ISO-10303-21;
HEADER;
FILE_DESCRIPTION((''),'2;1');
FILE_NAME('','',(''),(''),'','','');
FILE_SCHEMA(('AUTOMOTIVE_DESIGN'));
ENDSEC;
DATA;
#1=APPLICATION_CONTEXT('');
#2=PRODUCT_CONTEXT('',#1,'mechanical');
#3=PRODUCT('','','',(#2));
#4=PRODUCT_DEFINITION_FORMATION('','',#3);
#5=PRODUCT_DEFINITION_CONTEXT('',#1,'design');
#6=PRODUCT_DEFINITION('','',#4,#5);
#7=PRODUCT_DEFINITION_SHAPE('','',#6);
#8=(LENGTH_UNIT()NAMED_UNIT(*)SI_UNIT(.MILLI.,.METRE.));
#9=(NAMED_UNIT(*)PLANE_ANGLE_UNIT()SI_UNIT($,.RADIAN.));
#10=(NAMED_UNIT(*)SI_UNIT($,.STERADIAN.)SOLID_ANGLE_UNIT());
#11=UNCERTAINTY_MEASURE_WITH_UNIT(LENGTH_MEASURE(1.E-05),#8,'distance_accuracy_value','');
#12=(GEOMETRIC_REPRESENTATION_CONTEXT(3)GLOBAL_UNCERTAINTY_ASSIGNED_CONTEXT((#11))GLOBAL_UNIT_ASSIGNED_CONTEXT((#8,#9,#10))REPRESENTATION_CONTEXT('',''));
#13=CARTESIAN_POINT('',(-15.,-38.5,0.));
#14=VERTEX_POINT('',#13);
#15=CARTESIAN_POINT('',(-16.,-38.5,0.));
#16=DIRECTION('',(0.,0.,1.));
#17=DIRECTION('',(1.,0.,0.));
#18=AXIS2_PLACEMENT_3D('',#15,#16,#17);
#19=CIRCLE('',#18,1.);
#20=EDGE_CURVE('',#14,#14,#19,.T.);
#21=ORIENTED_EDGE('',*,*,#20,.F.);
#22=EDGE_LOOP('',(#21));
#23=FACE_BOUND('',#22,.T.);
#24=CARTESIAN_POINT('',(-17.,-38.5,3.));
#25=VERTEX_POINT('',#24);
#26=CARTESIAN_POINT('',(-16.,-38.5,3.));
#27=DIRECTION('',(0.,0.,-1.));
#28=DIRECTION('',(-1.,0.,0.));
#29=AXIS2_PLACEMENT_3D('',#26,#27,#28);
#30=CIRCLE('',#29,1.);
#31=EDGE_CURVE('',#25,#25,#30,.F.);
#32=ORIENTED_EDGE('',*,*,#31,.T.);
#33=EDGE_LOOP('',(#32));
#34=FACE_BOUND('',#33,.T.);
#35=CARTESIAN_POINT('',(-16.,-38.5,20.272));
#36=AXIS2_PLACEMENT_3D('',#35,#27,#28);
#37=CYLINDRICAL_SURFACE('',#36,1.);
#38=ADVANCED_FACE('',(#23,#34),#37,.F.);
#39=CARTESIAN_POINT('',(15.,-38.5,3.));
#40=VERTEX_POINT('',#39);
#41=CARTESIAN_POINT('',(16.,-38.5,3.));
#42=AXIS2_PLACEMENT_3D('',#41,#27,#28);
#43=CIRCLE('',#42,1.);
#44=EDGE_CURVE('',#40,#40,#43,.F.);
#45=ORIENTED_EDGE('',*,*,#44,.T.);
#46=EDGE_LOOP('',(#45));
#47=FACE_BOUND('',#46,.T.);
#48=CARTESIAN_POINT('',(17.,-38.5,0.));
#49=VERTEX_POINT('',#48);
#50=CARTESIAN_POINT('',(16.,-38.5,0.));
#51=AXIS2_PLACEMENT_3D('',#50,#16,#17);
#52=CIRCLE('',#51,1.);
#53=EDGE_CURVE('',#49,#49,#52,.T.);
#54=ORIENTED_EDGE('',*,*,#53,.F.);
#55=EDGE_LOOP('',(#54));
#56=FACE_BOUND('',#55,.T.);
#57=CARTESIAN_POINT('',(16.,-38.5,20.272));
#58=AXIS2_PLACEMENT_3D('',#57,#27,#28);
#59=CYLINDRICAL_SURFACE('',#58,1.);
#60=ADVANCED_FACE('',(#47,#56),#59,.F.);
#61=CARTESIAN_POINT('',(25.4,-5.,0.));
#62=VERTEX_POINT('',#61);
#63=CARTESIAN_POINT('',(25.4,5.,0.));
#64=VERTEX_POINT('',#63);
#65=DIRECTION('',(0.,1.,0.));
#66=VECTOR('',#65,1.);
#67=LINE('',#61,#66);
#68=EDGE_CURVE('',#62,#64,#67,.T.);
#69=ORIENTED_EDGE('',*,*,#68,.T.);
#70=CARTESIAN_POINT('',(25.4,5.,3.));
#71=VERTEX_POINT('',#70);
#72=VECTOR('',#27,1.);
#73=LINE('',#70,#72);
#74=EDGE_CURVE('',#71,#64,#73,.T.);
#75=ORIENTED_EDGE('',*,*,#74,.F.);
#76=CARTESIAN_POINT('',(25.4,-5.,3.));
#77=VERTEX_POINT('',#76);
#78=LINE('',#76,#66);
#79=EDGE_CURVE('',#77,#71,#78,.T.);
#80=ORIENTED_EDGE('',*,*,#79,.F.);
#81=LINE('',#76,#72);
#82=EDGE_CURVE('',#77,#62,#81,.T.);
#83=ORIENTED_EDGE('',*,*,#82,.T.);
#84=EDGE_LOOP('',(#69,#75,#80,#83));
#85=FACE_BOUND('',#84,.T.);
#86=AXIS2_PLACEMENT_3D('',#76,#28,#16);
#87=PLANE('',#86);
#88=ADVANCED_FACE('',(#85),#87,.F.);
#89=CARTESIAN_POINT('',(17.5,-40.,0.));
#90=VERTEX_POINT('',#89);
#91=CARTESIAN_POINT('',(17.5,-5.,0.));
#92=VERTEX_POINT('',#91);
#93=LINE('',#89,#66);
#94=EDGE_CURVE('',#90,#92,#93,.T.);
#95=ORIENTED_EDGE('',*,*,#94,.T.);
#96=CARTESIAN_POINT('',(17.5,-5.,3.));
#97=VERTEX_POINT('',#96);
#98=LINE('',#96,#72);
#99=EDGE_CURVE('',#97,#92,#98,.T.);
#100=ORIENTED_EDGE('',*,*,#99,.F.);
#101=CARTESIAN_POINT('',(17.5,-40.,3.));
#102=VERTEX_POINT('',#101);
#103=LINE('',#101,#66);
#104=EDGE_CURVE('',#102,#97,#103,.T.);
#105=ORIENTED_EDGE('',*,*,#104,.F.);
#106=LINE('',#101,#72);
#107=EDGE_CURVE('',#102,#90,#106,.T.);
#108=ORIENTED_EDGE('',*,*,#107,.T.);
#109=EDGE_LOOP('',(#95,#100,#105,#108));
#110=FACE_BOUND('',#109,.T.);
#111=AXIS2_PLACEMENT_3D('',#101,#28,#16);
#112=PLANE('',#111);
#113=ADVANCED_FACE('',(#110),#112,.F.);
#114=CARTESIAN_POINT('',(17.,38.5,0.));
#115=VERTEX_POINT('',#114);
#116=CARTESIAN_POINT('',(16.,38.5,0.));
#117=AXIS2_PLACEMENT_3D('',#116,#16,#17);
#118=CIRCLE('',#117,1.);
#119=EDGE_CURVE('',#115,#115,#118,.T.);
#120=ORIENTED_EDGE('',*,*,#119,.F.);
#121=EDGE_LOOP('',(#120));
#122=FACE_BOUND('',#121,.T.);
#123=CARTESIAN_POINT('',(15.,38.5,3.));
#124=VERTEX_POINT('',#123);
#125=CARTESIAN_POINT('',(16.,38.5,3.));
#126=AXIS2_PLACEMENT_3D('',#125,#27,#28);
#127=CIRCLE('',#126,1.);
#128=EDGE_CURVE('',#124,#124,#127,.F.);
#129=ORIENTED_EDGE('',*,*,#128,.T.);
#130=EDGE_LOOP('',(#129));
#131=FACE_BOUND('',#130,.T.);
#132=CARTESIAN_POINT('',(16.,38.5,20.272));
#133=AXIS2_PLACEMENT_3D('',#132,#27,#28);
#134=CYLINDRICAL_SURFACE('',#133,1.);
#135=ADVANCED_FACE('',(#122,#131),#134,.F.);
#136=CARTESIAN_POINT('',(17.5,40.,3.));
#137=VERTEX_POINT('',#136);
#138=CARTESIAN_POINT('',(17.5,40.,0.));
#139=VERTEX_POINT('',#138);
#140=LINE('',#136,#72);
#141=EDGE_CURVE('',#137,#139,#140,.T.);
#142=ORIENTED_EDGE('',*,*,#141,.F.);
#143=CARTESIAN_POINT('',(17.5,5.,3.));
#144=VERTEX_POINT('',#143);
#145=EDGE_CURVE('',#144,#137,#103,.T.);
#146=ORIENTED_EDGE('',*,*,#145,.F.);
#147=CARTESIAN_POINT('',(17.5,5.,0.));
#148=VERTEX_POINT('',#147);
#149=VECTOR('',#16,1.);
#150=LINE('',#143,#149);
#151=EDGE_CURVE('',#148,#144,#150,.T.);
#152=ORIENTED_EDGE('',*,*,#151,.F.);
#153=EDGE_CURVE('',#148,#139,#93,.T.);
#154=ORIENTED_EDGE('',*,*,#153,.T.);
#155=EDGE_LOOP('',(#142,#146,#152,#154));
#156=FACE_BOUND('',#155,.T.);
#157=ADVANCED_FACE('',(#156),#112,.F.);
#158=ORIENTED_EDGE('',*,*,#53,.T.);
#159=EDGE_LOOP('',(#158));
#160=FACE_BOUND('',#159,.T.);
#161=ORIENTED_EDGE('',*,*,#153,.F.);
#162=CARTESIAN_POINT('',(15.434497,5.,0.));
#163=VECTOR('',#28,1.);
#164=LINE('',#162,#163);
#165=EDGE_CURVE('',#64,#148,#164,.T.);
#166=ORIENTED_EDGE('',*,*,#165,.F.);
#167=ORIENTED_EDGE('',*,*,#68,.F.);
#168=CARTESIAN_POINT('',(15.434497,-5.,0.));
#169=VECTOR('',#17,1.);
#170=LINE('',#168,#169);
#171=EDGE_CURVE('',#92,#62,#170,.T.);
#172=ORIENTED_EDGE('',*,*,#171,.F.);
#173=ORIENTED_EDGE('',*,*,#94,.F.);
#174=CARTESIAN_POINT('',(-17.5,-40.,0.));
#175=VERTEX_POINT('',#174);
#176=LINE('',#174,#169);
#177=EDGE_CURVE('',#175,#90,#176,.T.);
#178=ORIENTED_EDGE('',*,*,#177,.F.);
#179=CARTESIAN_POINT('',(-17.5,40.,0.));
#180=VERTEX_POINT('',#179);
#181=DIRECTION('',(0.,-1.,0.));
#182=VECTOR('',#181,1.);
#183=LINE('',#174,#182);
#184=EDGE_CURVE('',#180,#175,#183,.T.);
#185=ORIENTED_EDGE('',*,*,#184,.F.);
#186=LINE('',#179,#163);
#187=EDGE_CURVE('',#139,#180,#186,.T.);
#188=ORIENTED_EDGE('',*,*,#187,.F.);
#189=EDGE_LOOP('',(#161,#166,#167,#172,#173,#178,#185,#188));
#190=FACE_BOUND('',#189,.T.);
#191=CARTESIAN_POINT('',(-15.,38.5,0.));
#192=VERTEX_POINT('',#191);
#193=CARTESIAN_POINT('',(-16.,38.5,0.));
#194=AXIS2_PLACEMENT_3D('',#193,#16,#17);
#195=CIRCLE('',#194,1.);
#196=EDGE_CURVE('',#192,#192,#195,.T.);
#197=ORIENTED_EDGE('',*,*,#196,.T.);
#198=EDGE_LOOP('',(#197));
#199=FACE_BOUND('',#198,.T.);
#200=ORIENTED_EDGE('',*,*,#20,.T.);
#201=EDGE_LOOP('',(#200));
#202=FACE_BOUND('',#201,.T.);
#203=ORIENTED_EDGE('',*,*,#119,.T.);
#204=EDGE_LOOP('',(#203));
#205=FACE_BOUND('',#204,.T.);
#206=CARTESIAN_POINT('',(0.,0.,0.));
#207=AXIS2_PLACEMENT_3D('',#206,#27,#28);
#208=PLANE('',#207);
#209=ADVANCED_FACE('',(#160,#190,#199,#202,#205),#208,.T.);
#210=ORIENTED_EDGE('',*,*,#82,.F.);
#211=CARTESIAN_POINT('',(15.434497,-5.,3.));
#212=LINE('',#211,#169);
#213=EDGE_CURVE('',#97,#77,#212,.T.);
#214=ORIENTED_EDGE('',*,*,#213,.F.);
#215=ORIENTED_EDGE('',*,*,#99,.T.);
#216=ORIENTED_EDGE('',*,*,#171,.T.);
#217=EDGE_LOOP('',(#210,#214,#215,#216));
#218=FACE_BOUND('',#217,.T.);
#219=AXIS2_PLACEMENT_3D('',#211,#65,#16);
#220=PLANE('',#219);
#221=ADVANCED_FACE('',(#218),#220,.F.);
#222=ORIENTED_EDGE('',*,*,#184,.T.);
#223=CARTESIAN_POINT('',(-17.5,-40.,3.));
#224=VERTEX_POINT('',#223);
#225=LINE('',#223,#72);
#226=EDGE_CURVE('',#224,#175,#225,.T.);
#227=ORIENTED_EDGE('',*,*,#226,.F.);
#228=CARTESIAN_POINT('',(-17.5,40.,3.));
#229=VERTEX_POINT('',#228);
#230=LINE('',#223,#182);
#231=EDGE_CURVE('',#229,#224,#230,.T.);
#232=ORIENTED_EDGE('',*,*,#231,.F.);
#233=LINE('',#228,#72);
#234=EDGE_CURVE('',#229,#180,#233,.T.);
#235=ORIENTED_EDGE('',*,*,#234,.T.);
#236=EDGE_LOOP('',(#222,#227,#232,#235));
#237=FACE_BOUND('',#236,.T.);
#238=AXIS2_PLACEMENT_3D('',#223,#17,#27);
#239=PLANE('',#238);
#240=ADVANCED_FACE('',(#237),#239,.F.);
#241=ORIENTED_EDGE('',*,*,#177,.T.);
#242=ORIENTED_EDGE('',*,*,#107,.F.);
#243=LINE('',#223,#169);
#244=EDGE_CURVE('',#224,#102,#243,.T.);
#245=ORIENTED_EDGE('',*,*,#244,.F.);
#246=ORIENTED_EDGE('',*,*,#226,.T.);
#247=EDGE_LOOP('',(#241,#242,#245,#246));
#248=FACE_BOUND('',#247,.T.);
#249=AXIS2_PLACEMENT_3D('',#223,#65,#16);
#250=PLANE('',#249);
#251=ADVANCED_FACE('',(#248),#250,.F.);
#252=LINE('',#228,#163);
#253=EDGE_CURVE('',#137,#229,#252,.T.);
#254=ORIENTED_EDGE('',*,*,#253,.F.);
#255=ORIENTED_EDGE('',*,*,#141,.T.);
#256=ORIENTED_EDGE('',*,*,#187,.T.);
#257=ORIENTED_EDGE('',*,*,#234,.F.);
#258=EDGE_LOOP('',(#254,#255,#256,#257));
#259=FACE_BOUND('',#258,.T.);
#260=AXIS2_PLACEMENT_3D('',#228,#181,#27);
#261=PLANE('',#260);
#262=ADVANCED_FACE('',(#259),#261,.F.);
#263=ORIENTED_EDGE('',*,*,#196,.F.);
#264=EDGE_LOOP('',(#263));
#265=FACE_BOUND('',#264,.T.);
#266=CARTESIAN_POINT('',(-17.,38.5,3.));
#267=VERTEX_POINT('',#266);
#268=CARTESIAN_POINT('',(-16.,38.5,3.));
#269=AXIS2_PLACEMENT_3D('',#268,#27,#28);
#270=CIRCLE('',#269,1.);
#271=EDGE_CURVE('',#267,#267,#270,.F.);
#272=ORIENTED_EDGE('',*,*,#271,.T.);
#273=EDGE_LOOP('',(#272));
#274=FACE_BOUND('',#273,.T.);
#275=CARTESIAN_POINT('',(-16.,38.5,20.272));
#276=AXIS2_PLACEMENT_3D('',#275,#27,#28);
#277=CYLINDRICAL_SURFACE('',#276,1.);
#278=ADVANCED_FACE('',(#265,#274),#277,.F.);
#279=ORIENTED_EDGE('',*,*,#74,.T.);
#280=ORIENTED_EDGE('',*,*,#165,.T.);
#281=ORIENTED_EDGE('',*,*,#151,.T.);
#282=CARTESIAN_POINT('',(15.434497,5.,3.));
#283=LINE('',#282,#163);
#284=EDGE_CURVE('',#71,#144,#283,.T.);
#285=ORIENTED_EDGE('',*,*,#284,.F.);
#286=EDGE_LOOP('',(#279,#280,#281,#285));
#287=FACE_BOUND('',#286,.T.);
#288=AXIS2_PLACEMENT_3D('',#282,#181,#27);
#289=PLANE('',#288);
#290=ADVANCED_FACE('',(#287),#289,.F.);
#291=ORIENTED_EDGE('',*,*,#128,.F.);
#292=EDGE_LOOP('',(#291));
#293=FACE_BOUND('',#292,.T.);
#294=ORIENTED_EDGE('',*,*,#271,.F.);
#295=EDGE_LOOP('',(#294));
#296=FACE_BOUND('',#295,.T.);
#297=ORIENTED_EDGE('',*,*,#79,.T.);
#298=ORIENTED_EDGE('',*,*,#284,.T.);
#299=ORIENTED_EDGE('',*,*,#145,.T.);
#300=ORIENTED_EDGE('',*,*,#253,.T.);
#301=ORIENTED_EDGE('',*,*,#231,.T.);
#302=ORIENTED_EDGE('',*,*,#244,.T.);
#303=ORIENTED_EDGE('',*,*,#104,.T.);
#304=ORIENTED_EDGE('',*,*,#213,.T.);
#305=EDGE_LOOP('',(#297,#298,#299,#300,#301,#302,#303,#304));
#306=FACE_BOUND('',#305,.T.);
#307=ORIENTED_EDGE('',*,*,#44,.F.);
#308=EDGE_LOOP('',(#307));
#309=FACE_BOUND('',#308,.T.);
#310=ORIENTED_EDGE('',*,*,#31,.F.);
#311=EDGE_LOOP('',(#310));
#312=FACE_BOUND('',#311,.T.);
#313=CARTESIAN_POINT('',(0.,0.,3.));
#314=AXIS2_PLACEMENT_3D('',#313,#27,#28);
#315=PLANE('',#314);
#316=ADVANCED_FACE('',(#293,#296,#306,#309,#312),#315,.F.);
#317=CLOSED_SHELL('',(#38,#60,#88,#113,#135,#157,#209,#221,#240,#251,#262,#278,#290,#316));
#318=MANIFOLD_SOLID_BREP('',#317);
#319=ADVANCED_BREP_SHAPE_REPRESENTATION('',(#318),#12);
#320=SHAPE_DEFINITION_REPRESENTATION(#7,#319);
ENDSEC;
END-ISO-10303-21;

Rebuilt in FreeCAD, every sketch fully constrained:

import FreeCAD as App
import Part
import Sketcher

V = App.Vector
Q = App.Units.Quantity


def add_polygon(sketch, points):
    """Adds a closed chain of lines whose ends are joined by coincident constraints."""
    first, n = sketch.GeometryCount, len(points)
    for a, b in zip(points, points[1:] + points[:1]):
        sketch.addGeometry(Part.LineSegment(App.Vector(*a, 0), App.Vector(*b, 0)), False)
    for i in range(n):
        sketch.addConstraint(Sketcher.Constraint("Coincident", first + i, 2, first + (i + 1) % n, 1))

doc = App.newDocument("Part")
body = doc.addObject("PartDesign::Body", "Body")

sketch1 = doc.addObject("Sketcher::SketchObject", "Sketch")
body.addObject(sketch1)
sketch1.AttachmentSupport = (doc.XY_Plane, [""])
sketch1.MapMode = "FlatFace"
add_polygon(sketch1, [(-18, 40), (-18, -40), (18, -40), (18, 40)])
sketch1.addConstraint([
    Sketcher.Constraint("Vertical", 0),
    Sketcher.Constraint("Horizontal", 1),
    Sketcher.Constraint("Vertical", 2),
    Sketcher.Constraint("Horizontal", 3),
    Sketcher.Constraint("Symmetric", 0, 2, 2, 2, -1, 1),
    Sketcher.Constraint("DistanceX", 1, 1, 1, 2, Q("35 mm")),
    Sketcher.Constraint("DistanceY", 0, 2, 0, 1, Q("80 mm")),
])
pad1 = doc.addObject("PartDesign::Pad", "Pad")
body.addObject(pad1)
pad1.Profile = sketch1
pad1.Length = 3

sketch2 = doc.addObject("Sketcher::SketchObject", "Sketch001")
body.addObject(sketch2)
sketch2.AttachmentSupport = (doc.XY_Plane, [""])
sketch2.MapMode = "FlatFace"
add_polygon(sketch2, [(15, 5), (15, -5), (25, -5), (25, 5)])
sketch2.addConstraint([
    Sketcher.Constraint("Vertical", 0),
    Sketcher.Constraint("Horizontal", 1),
    Sketcher.Constraint("Vertical", 2),
    Sketcher.Constraint("Horizontal", 3),
    Sketcher.Constraint("DistanceY", 0, 2, 0, 1, Q("10 mm")),
    Sketcher.Constraint("DistanceY", 0, 2, -1, 1, Q("5 mm")),
    Sketcher.Constraint("DistanceX", -1, 1, 1, 2, Q("25.4 mm")),
    Sketcher.Constraint("DistanceX", 1, 1, 1, 2, Q("9.965503 mm")),
])
pad2 = doc.addObject("PartDesign::Pad", "Pad001")
body.addObject(pad2)
pad2.Profile = sketch2
pad2.Length = 3

sketch3 = doc.addObject("Sketcher::SketchObject", "Sketch002")
body.addObject(sketch3)
sketch3.AttachmentSupport = (doc.XY_Plane, [""])
sketch3.MapMode = "FlatFace"
sketch3.addGeometry([
    Part.Circle(V(16, 38.5, 0), V(0, 0, 1), 1),
    Part.Circle(V(-16, 38.5, 0), V(0, 0, 1), 1),
    Part.Circle(V(16, -38.5, 0), V(0, 0, 1), 1),
    Part.Circle(V(-16, -38.5, 0), V(0, 0, 1), 1),
], False)
sketch3.addConstraint([
    Sketcher.Constraint("Equal", 0, 1),
    Sketcher.Constraint("Equal", 1, 2),
    Sketcher.Constraint("Equal", 2, 3),
    Sketcher.Constraint("Symmetric", 1, 3, 2, 3, -1, 1),
    Sketcher.Constraint("Symmetric", 0, 3, 3, 3, -1, 1),
    Sketcher.Constraint("Symmetric", 0, 3, 1, 3, -2),
    Sketcher.Constraint("Diameter", 0, Q("2 mm")),
    Sketcher.Constraint("DistanceX", -1, 1, 0, 3, Q("16 mm")),
    Sketcher.Constraint("DistanceY", 2, 3, 0, 3, Q("77 mm")),
])
pocket1 = doc.addObject("PartDesign::Pocket", "Pocket")
body.addObject(pocket1)
pocket1.Profile = sketch3
pocket1.Length = 20.272
pocket1.Reversed = True

doc.recompute()
